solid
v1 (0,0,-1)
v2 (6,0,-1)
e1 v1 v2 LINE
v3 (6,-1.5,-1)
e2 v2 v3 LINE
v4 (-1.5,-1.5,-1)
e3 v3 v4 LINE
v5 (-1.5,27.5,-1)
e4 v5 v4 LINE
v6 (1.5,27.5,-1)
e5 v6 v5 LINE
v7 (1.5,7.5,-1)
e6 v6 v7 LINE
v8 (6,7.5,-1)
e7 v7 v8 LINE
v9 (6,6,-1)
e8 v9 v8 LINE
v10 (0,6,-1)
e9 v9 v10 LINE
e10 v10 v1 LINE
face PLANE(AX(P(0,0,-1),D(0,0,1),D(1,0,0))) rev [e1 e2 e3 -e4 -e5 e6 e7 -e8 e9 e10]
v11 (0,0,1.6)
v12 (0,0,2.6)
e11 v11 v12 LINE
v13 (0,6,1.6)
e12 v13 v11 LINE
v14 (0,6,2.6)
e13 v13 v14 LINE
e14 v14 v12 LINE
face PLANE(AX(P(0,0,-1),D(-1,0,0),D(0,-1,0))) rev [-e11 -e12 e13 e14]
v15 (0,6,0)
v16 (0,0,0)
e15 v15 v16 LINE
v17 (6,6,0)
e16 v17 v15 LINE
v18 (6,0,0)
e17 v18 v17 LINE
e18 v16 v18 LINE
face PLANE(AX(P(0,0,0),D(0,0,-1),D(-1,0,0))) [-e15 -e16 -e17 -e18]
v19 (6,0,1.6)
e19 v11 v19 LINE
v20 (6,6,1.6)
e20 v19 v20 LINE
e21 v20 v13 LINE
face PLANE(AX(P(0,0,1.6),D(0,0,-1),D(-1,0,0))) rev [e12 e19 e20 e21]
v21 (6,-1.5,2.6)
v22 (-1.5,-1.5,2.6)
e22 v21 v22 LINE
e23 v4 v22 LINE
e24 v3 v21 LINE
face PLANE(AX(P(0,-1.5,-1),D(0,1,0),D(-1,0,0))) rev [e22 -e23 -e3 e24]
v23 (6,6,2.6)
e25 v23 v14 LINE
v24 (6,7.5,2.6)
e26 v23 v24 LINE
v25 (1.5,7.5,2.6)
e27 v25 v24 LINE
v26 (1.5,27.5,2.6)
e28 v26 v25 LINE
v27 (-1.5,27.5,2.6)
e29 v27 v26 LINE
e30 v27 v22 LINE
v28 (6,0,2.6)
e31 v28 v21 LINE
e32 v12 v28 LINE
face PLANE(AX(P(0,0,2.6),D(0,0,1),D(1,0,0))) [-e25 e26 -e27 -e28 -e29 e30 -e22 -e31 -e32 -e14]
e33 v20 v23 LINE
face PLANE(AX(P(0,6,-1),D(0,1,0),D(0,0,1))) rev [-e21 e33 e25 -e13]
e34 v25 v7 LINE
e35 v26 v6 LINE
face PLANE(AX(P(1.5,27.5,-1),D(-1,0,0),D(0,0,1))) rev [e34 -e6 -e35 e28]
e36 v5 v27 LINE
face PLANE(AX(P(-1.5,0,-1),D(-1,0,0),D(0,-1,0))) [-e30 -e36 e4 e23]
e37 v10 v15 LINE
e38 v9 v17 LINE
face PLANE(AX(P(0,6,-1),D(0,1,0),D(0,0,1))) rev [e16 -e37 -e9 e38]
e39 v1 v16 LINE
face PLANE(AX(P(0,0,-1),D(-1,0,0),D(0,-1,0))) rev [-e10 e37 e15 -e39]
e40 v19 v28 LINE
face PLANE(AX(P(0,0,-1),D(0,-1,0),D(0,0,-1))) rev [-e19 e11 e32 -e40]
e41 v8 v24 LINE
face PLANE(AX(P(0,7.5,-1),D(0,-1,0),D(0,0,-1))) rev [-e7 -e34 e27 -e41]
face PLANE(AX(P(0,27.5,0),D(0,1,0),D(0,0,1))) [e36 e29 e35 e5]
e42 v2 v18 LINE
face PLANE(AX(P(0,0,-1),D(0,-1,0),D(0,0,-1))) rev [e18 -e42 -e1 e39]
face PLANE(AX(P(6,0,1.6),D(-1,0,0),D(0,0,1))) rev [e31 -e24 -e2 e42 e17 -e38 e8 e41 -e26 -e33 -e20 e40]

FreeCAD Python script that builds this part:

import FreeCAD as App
import Part
import Sketcher
from FreeCAD import Vector
Q = App.Units.Quantity


def add_polygon(sketch, points):
    """Adds a closed chain of lines whose ends are joined by coincident constraints."""
    first, n = sketch.GeometryCount, len(points)
    for a, b in zip(points, points[1:] + points[:1]):
        sketch.addGeometry(Part.LineSegment(App.Vector(*a, 0), App.Vector(*b, 0)), False)
    for i in range(n):
        sketch.addConstraint(Sketcher.Constraint("Coincident", first + i, 2, first + (i + 1) % n, 1))

doc = App.newDocument("Part")
body = doc.addObject("PartDesign::Body", "Body")

# Sketch on XY plane
sketch1 = body.newObject("Sketcher::SketchObject", "Sketch")
sketch1.AttachmentSupport = (doc.getObject("XY_Plane"), [""])
sketch1.MapMode = "FlatFace"
add_polygon(sketch1, [(0, 6), (0, 0), (6, 0), (6, 6)])  # lines 0-3
sketch1.addConstraint([
    Sketcher.Constraint("Vertical", 0),
    Sketcher.Constraint("Horizontal", 1),
    Sketcher.Constraint("Vertical", 2),
    Sketcher.Constraint("Horizontal", 3),
    Sketcher.Constraint("Coincident", 0, 2, -1, 1),
    Sketcher.Constraint("Equal", 3, 0),
    Sketcher.Constraint("DistanceX", 1, 1, 1, 2, Q("6 mm")),
])
pad1 = body.newObject("PartDesign::Pad", "Pad")
pad1.Profile = sketch1
pad1.Length = 1.6

# Sketch on XY plane
sketch2 = body.newObject("Sketcher::SketchObject", "Sketch001")
sketch2.AttachmentSupport = (doc.getObject("XY_Plane"), [""])
sketch2.MapMode = "FlatFace"
sketch2.AttachmentOffset = App.Placement(Vector(0, 0, 1.6), App.Rotation())
add_polygon(sketch2, [(0, 6), (6, 6), (6, 7.5), (-1.5, 7.5), (-1.5, -1.5), (6, -1.5), (6, 0), (0, 0)])  # lines 0-7
sketch2.addConstraint([
    Sketcher.Constraint("Horizontal", 0),
    Sketcher.Constraint("Vertical", 1),
    Sketcher.Constraint("Horizontal", 2),
    Sketcher.Constraint("Vertical", 3),
    Sketcher.Constraint("Horizontal", 4),
    Sketcher.Constraint("Vertical", 5),
    Sketcher.Constraint("Horizontal", 6),
    Sketcher.Constraint("Vertical", 7),
    Sketcher.Constraint("Coincident", 6, 2, -1, 1),
    Sketcher.Constraint("Vertical", 1, 2, 4, 2),
    Sketcher.Constraint("Equal", 1, 5),
    Sketcher.Constraint("Equal", 6, 7),
    Sketcher.Constraint("DistanceX", 0, 1, 0, 2, Q("6 mm")),
    Sketcher.Constraint("DistanceY", 3, 2, 3, 1, Q("9 mm")),
    Sketcher.Constraint("DistanceX", 2, 2, 2, 1, Q("7.5 mm")),
])
pad2 = body.newObject("PartDesign::Pad", "Pad001")
pad2.Profile = sketch2
pad2.Type = "TwoLengths"
pad2.Length = 1
pad2.Length2 = 2.6

# Sketch on XZ plane
sketch3 = body.newObject("Sketcher::SketchObject", "Sketch002")
sketch3.AttachmentSupport = (doc.getObject("XZ_Plane"), [""])
sketch3.MapMode = "FlatFace"
sketch3.AttachmentOffset = App.Placement(Vector(0, 0, -7.5), App.Rotation())
add_polygon(sketch3, [(-1.5, -1), (-1.5, 2.6), (1.5, 2.6), (1.5, -1)])  # lines 0-3
sketch3.addConstraint([
    Sketcher.Constraint("Vertical", 0),
    Sketcher.Constraint("Horizontal", 1),
    Sketcher.Constraint("Vertical", 2),
    Sketcher.Constraint("Horizontal", 3),
    Sketcher.Constraint("DistanceX", 1, 1, 1, 2, Q("3 mm")),
    Sketcher.Constraint("DistanceY", 0, 1, 0, 2, Q("3.6 mm")),
    Sketcher.Constraint("DistanceY", 2, 2, -1, 1, Q("1 mm")),
    Sketcher.Constraint("DistanceX", 0, 2, -1, 1, Q("1.5 mm")),
])
pad3 = body.newObject("PartDesign::Pad", "Pad002")
pad3.Profile = sketch3
pad3.Length = 20
pad3.Reversed = True

doc.recompute()
